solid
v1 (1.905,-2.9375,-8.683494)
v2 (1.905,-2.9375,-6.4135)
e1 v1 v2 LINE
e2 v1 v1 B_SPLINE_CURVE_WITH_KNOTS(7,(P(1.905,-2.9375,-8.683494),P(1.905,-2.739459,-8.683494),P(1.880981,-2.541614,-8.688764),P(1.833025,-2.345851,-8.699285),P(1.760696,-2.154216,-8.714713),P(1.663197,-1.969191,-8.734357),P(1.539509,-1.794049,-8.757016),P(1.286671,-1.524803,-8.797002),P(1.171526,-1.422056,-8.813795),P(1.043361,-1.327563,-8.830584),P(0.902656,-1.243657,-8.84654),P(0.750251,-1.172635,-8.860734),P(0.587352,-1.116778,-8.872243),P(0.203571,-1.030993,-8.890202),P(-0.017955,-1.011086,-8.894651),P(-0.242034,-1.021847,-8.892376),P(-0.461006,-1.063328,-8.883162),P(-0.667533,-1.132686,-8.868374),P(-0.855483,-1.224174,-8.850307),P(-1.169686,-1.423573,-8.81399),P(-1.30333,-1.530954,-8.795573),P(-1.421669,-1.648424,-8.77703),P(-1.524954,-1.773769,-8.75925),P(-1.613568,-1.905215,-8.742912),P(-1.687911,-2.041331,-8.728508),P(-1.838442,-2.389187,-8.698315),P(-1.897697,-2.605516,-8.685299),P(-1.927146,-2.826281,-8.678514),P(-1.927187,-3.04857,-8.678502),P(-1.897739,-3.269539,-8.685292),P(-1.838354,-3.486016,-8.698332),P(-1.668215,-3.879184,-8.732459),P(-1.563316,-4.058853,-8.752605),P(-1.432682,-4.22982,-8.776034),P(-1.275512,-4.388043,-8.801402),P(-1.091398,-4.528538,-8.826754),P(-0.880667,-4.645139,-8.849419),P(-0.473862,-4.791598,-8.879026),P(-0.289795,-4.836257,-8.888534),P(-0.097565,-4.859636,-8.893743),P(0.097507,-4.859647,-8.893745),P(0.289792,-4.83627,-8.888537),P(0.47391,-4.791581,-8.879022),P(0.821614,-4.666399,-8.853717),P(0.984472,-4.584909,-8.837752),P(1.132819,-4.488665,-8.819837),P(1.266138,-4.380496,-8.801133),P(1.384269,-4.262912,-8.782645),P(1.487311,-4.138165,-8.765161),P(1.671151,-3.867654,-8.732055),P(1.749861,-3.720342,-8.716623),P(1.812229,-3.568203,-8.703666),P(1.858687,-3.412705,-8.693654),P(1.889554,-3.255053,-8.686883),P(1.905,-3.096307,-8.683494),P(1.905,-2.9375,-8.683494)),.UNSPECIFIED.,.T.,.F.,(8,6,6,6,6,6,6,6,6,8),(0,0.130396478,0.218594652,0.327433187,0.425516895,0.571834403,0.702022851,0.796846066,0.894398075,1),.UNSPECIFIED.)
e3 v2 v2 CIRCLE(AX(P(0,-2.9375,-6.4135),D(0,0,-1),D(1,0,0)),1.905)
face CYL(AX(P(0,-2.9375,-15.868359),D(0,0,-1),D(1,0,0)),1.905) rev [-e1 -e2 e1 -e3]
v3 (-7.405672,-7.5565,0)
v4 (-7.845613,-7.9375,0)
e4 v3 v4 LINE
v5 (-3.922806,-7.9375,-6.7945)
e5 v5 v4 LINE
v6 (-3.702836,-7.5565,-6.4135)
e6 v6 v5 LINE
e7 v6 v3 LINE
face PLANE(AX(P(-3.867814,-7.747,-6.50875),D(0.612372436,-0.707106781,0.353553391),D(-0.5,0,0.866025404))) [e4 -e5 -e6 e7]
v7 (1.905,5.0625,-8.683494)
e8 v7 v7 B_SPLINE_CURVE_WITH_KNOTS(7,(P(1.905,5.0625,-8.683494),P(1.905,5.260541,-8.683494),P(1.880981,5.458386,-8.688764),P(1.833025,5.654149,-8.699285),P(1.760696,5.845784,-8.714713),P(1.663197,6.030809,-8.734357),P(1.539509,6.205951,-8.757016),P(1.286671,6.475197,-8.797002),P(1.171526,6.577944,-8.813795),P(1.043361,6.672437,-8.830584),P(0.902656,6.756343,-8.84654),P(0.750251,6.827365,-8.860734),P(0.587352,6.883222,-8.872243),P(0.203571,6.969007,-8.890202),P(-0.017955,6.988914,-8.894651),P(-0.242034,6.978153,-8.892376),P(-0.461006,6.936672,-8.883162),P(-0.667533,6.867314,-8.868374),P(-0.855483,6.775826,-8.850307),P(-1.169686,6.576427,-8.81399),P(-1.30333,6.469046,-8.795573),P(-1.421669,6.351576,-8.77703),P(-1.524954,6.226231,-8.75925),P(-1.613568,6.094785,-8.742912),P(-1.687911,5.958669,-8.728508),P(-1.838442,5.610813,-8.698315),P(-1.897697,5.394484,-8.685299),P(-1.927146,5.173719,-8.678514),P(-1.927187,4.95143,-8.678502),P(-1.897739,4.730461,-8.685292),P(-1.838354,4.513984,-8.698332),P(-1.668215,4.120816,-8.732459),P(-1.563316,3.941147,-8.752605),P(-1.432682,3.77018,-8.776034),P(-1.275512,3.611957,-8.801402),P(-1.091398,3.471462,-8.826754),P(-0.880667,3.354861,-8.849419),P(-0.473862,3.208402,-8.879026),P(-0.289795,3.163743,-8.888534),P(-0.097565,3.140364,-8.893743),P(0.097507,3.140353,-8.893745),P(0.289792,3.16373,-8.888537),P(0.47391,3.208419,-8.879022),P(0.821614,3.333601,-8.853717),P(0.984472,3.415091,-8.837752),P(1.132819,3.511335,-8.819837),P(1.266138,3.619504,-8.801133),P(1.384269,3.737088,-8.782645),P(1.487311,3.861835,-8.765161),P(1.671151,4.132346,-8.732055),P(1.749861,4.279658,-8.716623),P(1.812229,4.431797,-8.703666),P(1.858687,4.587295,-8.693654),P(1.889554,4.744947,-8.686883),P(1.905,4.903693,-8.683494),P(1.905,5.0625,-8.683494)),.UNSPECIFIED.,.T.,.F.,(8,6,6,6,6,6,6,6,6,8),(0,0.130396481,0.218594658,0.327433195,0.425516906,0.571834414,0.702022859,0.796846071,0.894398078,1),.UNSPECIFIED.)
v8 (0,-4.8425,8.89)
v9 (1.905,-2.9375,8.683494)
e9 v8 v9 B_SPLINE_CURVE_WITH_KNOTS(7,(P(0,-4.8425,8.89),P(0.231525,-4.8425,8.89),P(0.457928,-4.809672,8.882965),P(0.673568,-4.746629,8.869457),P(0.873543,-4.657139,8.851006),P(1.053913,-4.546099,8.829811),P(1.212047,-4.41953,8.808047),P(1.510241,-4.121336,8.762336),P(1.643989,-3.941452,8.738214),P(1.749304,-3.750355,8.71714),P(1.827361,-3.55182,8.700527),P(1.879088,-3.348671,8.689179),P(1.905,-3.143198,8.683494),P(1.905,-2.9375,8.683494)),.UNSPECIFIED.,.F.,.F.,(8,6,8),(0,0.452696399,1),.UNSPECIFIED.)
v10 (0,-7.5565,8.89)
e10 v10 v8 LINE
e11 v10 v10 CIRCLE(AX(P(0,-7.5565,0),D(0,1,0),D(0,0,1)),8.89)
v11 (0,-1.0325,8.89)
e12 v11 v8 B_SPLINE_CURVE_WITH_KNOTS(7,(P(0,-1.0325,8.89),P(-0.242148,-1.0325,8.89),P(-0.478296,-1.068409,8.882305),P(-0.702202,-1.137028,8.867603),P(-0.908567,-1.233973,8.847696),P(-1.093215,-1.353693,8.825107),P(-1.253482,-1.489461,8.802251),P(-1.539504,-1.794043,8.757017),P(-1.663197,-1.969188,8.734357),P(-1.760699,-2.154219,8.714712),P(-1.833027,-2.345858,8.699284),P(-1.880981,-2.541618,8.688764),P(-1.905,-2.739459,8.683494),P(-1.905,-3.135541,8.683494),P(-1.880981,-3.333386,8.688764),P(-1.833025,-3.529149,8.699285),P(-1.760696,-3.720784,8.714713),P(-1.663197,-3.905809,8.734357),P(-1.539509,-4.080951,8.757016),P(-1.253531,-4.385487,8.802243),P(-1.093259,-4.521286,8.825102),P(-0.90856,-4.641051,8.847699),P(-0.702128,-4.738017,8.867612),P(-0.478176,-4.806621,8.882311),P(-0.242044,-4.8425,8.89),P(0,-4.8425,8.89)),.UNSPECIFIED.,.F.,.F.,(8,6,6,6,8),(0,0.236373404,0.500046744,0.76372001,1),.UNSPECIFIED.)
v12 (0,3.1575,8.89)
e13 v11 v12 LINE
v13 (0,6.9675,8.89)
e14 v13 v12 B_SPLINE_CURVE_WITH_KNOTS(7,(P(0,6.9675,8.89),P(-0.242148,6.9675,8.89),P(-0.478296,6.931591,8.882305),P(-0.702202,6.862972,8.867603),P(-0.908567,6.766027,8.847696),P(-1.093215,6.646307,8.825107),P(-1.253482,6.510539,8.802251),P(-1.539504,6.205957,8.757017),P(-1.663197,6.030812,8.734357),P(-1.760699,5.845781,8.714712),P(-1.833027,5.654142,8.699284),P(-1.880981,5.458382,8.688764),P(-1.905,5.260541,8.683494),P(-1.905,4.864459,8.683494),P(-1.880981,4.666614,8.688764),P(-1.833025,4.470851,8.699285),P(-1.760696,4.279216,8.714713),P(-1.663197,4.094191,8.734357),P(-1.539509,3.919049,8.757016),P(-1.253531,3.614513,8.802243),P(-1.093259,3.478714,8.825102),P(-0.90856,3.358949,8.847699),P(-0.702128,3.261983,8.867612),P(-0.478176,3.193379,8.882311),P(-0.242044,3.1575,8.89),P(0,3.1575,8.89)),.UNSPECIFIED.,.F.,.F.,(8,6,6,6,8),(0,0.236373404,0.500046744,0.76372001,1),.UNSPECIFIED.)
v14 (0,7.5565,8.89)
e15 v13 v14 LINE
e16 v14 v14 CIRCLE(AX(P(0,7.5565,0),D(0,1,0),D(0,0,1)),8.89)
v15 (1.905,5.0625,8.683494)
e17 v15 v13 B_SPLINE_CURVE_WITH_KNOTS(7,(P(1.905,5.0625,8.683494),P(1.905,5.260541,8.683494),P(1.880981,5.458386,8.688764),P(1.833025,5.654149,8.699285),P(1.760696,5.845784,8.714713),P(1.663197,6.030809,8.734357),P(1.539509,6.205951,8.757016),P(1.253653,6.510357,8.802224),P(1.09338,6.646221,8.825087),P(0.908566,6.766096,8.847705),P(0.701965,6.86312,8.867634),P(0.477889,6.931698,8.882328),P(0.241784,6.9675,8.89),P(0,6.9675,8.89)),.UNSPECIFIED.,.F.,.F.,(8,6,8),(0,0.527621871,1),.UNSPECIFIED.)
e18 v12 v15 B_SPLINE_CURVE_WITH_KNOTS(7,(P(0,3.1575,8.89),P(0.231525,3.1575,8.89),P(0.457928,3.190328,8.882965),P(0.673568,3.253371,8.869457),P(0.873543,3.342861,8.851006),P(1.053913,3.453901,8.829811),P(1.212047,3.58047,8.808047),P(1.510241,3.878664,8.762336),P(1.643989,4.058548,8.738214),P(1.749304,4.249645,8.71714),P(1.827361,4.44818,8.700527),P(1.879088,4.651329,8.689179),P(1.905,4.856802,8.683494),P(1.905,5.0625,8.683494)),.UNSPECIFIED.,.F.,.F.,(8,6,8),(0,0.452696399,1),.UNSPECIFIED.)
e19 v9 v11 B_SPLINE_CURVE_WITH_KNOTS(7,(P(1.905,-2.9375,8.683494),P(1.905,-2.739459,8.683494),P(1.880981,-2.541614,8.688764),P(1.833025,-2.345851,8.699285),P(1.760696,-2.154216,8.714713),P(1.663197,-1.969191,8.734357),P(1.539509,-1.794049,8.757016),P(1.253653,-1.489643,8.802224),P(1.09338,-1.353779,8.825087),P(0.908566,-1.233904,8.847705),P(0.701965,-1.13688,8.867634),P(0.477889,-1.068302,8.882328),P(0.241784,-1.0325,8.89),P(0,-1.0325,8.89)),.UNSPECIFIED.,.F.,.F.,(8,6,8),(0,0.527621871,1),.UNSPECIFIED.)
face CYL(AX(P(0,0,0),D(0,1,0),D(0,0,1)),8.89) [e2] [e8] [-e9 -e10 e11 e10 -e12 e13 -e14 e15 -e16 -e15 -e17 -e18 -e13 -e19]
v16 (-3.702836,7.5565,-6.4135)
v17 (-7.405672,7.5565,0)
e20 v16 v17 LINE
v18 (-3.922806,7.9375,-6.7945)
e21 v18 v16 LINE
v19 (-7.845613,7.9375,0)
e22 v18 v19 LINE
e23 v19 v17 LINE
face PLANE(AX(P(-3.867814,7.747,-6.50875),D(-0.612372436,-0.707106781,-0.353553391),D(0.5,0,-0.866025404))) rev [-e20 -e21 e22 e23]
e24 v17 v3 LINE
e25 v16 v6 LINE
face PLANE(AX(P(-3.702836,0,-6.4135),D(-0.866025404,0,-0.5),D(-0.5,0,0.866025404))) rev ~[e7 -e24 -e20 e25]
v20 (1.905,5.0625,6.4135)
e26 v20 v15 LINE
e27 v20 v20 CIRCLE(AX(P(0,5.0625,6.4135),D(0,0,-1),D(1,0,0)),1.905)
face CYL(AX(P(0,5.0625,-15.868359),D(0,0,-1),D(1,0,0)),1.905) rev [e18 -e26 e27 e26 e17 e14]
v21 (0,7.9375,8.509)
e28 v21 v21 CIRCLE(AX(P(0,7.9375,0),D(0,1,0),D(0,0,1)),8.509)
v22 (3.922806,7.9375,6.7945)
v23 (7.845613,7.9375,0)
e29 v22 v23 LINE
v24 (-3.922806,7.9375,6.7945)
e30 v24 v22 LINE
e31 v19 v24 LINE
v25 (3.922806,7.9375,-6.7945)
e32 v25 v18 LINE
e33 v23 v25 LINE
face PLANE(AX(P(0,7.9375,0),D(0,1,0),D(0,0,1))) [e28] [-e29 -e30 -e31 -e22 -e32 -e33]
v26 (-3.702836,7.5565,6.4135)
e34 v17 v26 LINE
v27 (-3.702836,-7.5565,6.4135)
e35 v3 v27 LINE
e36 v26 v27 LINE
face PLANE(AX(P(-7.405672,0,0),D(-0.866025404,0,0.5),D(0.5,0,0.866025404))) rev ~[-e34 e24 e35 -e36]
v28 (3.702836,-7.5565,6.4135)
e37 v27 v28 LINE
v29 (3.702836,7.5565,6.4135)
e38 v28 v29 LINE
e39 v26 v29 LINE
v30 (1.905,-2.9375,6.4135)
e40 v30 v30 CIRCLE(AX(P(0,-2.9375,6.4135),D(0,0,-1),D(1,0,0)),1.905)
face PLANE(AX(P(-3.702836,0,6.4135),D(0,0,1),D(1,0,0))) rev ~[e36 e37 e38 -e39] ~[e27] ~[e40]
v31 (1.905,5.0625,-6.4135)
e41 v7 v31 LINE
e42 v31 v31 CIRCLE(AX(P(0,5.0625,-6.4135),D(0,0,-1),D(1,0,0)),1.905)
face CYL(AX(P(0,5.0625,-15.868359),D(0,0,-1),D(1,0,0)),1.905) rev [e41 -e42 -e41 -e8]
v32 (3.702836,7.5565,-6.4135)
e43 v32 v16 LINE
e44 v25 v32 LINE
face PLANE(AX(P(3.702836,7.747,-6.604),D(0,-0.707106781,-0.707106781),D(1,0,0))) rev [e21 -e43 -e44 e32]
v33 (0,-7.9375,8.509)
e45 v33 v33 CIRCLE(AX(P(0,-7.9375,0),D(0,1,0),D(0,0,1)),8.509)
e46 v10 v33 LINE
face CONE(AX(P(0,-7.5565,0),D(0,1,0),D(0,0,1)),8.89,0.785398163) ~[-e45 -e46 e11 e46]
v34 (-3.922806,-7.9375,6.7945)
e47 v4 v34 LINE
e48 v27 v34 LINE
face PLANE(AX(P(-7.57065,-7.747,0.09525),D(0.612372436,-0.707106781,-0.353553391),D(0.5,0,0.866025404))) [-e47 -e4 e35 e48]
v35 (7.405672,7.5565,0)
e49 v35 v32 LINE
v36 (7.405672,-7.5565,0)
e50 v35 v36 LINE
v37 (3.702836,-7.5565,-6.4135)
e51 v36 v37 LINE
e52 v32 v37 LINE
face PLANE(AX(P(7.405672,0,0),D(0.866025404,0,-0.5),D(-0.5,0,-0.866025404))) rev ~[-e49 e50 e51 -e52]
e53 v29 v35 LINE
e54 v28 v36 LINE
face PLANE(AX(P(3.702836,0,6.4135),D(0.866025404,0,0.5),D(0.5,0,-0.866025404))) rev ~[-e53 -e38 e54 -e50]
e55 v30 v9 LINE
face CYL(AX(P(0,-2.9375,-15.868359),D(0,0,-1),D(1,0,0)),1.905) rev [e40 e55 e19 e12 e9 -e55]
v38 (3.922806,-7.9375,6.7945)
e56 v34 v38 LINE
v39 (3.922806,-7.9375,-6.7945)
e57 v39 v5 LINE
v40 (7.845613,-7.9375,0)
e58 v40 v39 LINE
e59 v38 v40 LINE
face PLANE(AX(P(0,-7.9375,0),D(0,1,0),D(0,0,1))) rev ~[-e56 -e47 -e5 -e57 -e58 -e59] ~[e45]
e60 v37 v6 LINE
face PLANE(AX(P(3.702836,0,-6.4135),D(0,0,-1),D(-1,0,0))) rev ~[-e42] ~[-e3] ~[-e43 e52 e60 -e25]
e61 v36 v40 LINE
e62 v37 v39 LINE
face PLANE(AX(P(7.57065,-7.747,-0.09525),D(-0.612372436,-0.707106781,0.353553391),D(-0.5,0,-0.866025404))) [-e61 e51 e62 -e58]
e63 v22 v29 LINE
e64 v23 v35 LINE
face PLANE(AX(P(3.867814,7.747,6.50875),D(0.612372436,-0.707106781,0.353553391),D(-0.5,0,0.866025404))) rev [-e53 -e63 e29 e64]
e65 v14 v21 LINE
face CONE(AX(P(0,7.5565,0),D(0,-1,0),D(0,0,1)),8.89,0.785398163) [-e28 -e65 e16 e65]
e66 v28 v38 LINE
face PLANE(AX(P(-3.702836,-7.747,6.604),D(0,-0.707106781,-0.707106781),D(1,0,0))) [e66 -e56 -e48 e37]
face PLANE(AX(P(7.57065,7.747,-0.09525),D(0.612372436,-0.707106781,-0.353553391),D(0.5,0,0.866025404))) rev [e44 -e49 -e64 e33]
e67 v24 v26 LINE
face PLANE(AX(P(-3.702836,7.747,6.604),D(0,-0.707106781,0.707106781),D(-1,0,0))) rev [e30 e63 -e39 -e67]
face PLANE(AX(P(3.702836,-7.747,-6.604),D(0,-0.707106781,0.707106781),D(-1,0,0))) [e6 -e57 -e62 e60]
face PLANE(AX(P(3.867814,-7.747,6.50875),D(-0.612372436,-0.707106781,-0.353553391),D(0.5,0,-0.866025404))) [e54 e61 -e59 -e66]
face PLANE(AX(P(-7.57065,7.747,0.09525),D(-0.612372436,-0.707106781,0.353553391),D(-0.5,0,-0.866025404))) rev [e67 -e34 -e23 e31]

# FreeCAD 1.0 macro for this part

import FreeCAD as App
import Part
import Sketcher

V = App.Vector
Q = App.Units.Quantity


def edges_at(feature, points):
    """Names of the edges that pass closest to the given points."""
    edges = feature.Shape.Edges
    near = lambda p: min(range(len(edges)), key=lambda i: edges[i].distToShape(Part.Vertex(*p))[0])
    return sorted({f"Edge{near(p) + 1}" for p in points})

doc = App.newDocument("Part")
params = doc.addObject("Spreadsheet::Sheet", "Params")
for row, (alias, value) in enumerate([
    ("sketch1_diameter", "0.7 in"),
    ("pad1_length", "0.625 in"),
    ("chamfer_size", "0.015 in"),
    ("sketch2_diameter", "0.15 in"),
], start=1):
    params.set(f"A{row}", alias)
    params.set(f"B{row}", "=" + value)
    params.setAlias(f"B{row}", alias)

body = doc.addObject("PartDesign::Body", "Body")

# Sketch on XZ plane
sketch1 = body.newObject("Sketcher::SketchObject", "Sketch")
sketch1.AttachmentSupport = (doc.getObject("XZ_Plane"), [""])
sketch1.MapMode = "FlatFace"
sketch1.addGeometry([
    Part.Circle(V(0, 0, 0), V(0, 0, 1), 9),  # 0
    Part.LineSegment(V(7, 0, 0), V(4, 6, 0)),  # 1
    Part.LineSegment(V(4, 6, 0), V(-4, 6, 0)),  # 2
    Part.LineSegment(V(-4, 6, 0), V(-7, 0, 0)),  # 3
    Part.LineSegment(V(-7, 0, 0), V(-4, -6, 0)),  # 4
    Part.LineSegment(V(-4, -6, 0), V(4, -6, 0)),  # 5
    Part.LineSegment(V(4, -6, 0), V(7, 0, 0)),  # 6
], False)
sketch1.addConstraint([
    Sketcher.Constraint("Coincident", 1, 2, 2, 1),
    Sketcher.Constraint("Coincident", 2, 2, 3, 1),
    Sketcher.Constraint("Coincident", 3, 2, 4, 1),
    Sketcher.Constraint("Coincident", 4, 2, 5, 1),
    Sketcher.Constraint("Coincident", 5, 2, 6, 1),
    Sketcher.Constraint("Coincident", 6, 2, 1, 1),
    Sketcher.Constraint("Horizontal", 2),
    Sketcher.Constraint("Horizontal", 5),
    Sketcher.Constraint("Coincident", 0, 3, -1, 1),
    Sketcher.Constraint("Symmetric", 1, 2, 4, 2, -1, 1),
    Sketcher.Constraint("Symmetric", 3, 2, 6, 2, -1, 1),
    Sketcher.Constraint("PointOnObject", 3, 2, -1),
    Sketcher.Constraint("Parallel", 3, 6),
    Sketcher.Constraint("Vertical", 2, 2, 4, 2),
    Sketcher.Constraint("Diameter", 0, Q("0.7 in")),
    Sketcher.Constraint("Angle", 1, Q("120 deg")),
    Sketcher.Constraint("DistanceY", 4, 2, 2, 2, Q("0.505 in")),
    Sketcher.Constraint("DistanceX", 2, 2, 2, 1, Q("7.405672 mm")),
])
sketch1.setExpression("Constraints[14]", "Params.sketch1_diameter")
pad1 = body.newObject("PartDesign::Pad", "Pad")
pad1.Profile = sketch1
pad1.setExpression("Length", "Params.pad1_length")
pad1.Midplane = True
doc.recompute()

chamfer = body.newObject("PartDesign::Chamfer", "Chamfer")
chamfer.Base = (pad1, edges_at(pad1, [
    (5.554, -7.938, -3.207),
    (0, -7.938, -6.413),
    (-5.554, -7.938, -3.207),
    (-5.554, -7.938, 3.207),
    (0, 7.938, 6.413),
    (5.554, 7.938, 3.207),
    (5.554, 7.938, -3.207),
    (0, 7.938, -6.413),
    (-5.554, 7.938, -3.207),
    (-5.554, 7.938, 3.207),
    (0, -7.938, -8.89),
    (0, 7.938, -8.89),
    (0, -7.938, 6.413),
    (5.554, -7.938, 3.207),
]))
chamfer.setExpression("Size", "Params.chamfer_size")

# Sketch on XY plane
sketch2 = body.newObject("Sketcher::SketchObject", "Sketch001")
sketch2.AttachmentSupport = (doc.getObject("XY_Plane"), [""])
sketch2.MapMode = "FlatFace"
sketch2.addGeometry([
    Part.Circle(V(0, -2.9, 0), V(0, 0, 1), 1.9),
    Part.Circle(V(0, 5.1, 0), V(0, 0, 1), 1.9),
], False)
sketch2.addConstraint([
    Sketcher.Constraint("Equal", 0, 1),
    Sketcher.Constraint("PointOnObject", 0, 3, -2),
    Sketcher.Constraint("PointOnObject", 1, 3, -2),
    Sketcher.Constraint("Diameter", 0, Q("0.15 in")),
    Sketcher.Constraint("DistanceY", 0, 3, -1, 1, Q("2.9375 mm")),
    Sketcher.Constraint("DistanceY", -1, 1, 1, 3, Q("5.0625 mm")),
])
sketch2.setExpression("Constraints[3]", "Params.sketch2_diameter")
pocket1 = body.newObject("PartDesign::Pocket", "Pocket")
pocket1.Profile = sketch2
pocket1.Type = "ThroughAll"
pocket1.Midplane = True

doc.recompute()
